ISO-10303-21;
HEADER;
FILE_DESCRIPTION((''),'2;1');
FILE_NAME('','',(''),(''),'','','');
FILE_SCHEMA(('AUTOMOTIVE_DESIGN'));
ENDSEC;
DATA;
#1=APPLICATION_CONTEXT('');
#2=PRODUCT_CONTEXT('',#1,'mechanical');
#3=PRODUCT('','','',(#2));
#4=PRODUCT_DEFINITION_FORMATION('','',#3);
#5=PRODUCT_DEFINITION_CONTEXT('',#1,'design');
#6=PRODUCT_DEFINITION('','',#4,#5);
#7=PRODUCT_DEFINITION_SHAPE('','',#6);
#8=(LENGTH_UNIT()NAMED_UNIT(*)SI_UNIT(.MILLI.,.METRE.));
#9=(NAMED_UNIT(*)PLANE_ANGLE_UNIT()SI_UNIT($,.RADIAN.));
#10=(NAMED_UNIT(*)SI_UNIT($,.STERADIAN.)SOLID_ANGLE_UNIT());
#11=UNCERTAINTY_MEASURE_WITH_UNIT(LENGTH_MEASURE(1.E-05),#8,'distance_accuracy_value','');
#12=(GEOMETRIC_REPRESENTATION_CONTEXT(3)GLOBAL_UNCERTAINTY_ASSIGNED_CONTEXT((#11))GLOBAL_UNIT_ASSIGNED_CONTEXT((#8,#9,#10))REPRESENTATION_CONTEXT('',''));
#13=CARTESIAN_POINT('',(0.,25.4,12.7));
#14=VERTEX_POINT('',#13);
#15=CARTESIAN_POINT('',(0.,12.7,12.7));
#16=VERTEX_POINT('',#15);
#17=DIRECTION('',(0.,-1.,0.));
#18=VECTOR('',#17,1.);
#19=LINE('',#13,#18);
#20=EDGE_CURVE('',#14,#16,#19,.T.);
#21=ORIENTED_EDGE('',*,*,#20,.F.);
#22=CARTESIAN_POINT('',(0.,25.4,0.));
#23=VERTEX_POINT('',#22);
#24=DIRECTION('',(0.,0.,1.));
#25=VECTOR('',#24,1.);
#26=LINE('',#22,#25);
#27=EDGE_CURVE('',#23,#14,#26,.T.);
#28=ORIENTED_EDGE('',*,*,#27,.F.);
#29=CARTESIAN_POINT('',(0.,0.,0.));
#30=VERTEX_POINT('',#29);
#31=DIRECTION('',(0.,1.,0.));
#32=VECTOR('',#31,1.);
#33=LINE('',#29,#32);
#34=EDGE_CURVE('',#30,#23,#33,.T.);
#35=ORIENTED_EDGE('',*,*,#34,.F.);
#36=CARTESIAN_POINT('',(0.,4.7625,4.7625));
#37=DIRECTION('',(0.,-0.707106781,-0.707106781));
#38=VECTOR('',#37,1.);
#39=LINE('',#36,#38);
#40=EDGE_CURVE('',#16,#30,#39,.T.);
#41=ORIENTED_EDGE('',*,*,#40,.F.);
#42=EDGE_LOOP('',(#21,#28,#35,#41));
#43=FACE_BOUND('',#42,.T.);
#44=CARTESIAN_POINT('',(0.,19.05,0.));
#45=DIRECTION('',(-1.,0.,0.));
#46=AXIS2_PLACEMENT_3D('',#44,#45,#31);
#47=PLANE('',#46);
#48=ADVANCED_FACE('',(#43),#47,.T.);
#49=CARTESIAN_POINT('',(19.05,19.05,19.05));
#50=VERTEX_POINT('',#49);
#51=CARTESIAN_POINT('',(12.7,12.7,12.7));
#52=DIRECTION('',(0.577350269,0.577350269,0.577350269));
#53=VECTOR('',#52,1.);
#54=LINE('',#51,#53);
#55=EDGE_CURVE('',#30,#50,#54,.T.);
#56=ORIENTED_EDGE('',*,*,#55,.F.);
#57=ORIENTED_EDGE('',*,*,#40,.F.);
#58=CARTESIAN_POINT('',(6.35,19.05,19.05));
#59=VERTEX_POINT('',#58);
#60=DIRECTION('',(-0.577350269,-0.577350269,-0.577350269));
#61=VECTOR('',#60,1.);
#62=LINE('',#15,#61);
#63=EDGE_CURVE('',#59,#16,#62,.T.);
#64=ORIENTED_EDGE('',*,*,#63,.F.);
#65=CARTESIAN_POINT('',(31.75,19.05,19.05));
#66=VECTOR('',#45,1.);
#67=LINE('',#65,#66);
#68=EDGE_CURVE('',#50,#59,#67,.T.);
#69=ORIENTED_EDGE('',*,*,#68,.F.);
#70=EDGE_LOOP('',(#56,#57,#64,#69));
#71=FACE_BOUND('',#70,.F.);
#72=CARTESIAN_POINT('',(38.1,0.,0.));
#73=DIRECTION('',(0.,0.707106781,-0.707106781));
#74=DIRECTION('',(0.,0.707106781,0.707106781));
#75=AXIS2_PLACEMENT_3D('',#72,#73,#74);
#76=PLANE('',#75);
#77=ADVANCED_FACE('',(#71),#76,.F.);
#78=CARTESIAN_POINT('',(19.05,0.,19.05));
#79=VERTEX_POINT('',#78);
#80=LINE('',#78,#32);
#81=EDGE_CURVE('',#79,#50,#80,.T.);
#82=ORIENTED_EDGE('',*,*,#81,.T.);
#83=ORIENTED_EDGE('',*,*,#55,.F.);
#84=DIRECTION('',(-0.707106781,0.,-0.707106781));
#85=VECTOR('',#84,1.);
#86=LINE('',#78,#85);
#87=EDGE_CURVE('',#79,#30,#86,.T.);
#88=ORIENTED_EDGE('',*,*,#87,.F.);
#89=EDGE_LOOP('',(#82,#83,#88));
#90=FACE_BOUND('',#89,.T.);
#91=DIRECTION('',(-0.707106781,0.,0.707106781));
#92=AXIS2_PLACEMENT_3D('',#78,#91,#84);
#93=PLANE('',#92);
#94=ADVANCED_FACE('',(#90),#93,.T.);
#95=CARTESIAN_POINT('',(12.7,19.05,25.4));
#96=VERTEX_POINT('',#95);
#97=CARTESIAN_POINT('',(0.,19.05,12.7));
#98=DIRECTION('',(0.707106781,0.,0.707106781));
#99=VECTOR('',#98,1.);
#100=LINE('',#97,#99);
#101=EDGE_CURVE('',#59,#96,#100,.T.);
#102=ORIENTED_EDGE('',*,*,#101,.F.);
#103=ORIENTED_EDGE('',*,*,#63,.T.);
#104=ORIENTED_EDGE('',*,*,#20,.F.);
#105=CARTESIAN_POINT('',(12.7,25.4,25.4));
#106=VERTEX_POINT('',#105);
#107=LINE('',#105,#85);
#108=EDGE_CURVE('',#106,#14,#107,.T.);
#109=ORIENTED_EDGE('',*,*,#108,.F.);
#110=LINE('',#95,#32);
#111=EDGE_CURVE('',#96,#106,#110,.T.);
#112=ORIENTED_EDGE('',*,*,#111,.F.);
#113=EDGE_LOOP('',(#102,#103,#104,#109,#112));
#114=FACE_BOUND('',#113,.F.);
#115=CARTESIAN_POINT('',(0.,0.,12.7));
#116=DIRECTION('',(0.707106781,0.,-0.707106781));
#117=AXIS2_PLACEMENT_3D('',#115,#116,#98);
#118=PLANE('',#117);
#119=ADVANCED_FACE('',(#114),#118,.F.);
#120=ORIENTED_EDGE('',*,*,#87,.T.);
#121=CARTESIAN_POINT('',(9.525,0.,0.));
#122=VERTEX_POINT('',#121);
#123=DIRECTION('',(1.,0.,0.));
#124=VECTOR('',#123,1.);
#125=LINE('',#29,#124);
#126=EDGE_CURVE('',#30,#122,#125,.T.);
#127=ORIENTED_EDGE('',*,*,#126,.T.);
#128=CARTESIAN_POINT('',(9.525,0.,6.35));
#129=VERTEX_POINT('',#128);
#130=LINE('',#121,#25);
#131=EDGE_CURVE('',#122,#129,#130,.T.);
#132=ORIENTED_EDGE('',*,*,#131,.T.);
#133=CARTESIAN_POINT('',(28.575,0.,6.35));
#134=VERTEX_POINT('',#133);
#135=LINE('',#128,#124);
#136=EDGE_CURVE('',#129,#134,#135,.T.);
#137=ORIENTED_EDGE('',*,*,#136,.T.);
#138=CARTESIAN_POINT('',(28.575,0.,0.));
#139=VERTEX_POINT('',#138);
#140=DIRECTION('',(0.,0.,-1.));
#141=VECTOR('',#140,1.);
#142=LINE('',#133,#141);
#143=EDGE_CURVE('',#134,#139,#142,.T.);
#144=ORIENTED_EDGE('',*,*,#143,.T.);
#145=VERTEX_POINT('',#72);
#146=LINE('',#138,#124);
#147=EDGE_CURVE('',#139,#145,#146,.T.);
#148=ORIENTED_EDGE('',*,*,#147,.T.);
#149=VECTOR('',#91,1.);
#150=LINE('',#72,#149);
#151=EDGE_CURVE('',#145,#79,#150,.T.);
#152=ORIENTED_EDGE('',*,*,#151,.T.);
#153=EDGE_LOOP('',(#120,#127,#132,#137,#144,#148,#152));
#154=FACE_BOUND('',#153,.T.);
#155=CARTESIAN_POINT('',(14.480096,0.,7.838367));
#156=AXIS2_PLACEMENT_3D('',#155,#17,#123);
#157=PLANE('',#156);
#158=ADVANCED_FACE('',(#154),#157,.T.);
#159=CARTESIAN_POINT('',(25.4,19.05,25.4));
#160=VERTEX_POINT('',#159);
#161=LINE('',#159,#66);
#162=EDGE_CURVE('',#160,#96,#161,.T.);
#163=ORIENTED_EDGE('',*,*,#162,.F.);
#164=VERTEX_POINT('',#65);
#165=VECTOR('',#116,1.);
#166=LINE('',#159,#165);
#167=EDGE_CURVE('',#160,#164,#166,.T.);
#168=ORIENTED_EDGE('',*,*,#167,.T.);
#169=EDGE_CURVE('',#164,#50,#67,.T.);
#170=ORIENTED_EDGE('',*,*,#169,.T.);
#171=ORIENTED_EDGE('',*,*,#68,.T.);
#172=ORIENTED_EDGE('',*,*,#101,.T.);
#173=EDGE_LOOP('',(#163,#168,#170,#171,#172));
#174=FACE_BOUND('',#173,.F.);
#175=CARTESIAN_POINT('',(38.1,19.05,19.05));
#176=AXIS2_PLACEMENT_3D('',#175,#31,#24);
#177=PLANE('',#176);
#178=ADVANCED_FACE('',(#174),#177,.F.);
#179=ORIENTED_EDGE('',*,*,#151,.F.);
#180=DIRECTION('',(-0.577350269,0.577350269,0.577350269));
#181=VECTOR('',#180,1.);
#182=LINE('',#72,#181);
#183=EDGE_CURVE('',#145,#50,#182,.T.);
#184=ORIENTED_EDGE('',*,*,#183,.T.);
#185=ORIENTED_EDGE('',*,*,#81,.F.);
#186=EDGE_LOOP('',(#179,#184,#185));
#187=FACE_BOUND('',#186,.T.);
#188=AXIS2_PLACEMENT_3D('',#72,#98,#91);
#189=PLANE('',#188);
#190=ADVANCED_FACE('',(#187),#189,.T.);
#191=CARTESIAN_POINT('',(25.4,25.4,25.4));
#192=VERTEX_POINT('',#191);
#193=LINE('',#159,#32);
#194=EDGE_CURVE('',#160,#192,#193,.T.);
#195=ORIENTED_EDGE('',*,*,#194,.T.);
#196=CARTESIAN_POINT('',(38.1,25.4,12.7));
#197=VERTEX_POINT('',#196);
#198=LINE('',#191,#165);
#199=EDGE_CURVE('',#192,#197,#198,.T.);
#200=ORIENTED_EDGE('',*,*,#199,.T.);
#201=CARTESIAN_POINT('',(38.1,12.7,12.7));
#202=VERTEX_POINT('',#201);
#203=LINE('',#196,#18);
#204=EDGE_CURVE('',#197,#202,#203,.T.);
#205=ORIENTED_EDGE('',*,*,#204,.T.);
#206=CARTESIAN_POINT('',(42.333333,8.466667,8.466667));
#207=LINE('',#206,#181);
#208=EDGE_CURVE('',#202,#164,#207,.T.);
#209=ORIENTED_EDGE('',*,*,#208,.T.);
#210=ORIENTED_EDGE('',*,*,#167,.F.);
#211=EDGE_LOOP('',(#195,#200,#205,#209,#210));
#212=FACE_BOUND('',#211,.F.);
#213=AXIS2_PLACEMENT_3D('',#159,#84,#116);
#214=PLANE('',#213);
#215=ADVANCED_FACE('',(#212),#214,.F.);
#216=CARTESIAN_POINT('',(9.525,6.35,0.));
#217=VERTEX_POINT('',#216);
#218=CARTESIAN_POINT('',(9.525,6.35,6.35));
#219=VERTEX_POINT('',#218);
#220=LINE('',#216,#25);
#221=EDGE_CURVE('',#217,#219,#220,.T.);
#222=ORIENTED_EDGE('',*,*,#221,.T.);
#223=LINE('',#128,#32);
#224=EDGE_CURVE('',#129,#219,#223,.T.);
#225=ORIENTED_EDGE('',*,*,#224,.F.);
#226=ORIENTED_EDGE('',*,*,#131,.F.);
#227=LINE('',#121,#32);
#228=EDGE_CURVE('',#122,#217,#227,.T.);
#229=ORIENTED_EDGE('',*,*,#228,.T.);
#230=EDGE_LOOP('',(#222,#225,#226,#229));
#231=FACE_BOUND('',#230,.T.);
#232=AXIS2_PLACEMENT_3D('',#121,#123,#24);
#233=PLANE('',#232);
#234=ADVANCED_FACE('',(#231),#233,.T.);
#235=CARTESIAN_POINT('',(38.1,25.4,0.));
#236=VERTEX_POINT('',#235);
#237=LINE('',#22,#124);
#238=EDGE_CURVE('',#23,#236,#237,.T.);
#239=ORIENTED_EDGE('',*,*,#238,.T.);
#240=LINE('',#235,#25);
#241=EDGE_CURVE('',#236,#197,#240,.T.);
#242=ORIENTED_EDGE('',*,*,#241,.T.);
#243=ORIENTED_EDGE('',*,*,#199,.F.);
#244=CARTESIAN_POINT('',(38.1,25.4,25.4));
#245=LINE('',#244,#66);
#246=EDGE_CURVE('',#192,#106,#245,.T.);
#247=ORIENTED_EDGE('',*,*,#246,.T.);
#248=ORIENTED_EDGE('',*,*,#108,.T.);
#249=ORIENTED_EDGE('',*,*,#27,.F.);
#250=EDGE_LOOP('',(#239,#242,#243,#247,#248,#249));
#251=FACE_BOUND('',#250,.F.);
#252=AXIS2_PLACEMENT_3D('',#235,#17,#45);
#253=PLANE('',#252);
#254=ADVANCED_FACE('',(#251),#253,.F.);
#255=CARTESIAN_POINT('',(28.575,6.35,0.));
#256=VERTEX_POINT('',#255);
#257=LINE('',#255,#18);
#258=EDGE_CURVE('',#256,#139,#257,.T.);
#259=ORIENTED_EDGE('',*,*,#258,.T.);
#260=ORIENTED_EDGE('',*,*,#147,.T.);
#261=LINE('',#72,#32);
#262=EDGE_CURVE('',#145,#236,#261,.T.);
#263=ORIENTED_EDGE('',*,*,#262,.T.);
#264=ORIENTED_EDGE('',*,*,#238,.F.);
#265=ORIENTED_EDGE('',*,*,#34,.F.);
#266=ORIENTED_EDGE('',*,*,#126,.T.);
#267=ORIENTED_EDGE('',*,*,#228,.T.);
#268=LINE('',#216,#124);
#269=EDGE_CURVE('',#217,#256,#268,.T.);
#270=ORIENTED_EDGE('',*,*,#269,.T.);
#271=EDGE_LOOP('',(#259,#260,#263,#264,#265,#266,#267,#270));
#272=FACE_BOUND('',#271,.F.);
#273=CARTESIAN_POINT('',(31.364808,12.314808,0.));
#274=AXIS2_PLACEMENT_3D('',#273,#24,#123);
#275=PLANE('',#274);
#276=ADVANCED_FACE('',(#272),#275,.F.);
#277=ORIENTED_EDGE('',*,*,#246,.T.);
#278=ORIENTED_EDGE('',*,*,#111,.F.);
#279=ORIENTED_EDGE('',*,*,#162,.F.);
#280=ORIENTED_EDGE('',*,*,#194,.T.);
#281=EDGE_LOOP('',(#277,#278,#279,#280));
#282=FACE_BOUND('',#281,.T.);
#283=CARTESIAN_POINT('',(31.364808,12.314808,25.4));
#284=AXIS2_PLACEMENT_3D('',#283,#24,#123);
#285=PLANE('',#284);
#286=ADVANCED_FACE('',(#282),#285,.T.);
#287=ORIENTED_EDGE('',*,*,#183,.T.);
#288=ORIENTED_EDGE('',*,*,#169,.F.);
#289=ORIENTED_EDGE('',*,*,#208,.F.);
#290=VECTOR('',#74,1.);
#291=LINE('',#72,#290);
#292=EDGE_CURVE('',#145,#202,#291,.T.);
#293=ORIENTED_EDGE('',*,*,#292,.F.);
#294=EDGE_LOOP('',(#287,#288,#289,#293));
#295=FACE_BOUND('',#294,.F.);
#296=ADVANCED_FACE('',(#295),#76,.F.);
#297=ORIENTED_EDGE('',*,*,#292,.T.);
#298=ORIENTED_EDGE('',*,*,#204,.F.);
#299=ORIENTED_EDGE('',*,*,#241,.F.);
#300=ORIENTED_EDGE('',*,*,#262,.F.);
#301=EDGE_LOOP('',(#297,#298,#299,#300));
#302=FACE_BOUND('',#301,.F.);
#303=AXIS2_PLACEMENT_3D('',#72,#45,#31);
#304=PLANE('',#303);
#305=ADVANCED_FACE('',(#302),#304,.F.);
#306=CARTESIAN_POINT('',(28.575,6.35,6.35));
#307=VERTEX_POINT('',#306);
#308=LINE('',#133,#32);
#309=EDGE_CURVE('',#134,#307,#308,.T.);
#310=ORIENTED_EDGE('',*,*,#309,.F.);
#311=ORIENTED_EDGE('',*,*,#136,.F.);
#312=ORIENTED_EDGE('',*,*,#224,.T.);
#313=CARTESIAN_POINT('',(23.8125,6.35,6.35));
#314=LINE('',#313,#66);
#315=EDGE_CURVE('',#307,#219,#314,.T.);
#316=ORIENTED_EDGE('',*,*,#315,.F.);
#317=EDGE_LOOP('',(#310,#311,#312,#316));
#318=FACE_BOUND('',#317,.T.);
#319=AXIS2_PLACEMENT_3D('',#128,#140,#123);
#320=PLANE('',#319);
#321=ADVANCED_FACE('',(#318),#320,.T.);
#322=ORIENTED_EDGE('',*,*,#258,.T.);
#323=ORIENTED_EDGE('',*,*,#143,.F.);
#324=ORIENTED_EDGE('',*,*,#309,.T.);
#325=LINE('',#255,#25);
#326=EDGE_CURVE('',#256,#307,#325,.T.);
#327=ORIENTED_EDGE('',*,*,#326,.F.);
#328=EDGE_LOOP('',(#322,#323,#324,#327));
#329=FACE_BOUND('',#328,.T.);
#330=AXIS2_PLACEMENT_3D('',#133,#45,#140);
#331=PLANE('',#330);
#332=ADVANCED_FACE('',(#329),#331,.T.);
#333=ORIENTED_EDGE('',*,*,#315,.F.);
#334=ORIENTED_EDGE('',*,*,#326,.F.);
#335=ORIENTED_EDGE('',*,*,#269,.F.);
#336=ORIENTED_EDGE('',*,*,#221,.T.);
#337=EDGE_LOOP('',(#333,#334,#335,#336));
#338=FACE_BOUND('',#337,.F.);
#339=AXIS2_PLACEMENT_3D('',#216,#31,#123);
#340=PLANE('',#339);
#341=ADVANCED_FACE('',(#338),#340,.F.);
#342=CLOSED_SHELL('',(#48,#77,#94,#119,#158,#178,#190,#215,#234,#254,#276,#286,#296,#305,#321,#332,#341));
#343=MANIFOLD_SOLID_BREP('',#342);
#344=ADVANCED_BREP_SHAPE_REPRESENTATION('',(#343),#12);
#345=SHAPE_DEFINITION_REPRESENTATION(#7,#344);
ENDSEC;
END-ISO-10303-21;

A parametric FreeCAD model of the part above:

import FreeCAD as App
import Part
import Sketcher
from FreeCAD import Vector
Q = App.Units.Quantity


def add_polygon(sketch, points):
    """Adds a closed chain of lines whose ends are joined by coincident constraints."""
    first, n = sketch.GeometryCount, len(points)
    for a, b in zip(points, points[1:] + points[:1]):
        sketch.addGeometry(Part.LineSegment(App.Vector(*a, 0), App.Vector(*b, 0)), False)
    for i in range(n):
        sketch.addConstraint(Sketcher.Constraint("Coincident", first + i, 2, first + (i + 1) % n, 1))

doc = App.newDocument("Part")
body = doc.addObject("PartDesign::Body", "Body")

sketch1 = body.newObject("Sketcher::SketchObject", "Sketch")
sketch1.AttachmentSupport = (doc.getObject("XY_Plane"), [""])
sketch1.MapMode = "FlatFace"
add_polygon(sketch1, [(0, 25.4), (0, 19.05), (38.1, 19.05), (38.1, 25.4)])
sketch1.addConstraint([
    Sketcher.Constraint("Vertical", 0),
    Sketcher.Constraint("Horizontal", 1),
    Sketcher.Constraint("Vertical", 2),
    Sketcher.Constraint("Horizontal", 3),
    Sketcher.Constraint("PointOnObject", 0, 2, -2),
    Sketcher.Constraint("DistanceX", 1, 1, 1, 2, Q("1.5 in")),
    Sketcher.Constraint("DistanceY", -1, 1, 2, 2, Q("1 in")),
    Sketcher.Constraint("DistanceY", 0, 2, 0, 1, Q("0.25 in")),
])
pad1 = body.newObject("PartDesign::Pad", "Pad")
pad1.Profile = sketch1
pad1.Length = Q("1 in")

sketch2 = body.newObject("Sketcher::SketchObject", "Sketch001")
sketch2.AttachmentSupport = (doc.getObject("XZ_Plane"), [""])
sketch2.MapMode = "FlatFace"
sketch2.AttachmentOffset = App.Placement(Vector(0, 0, -0.75 * 25.4), App.Rotation())
add_polygon(sketch2, [(12.7, 25.4), (0, 25.4), (0, 12.7)])
add_polygon(sketch2, [(38.1, 25.4), (25.4, 25.4), (38.1, 12.7)])
sketch2.addConstraint([
    Sketcher.Constraint("Horizontal", 0),
    Sketcher.Constraint("Vertical", 1),
    Sketcher.Constraint("Horizontal", 3),
    Sketcher.Constraint("Vertical", 5),
    Sketcher.Constraint("PointOnObject", 0, 2, -2),
    Sketcher.Constraint("Perpendicular", 2, 4),
    Sketcher.Constraint("Horizontal", 2, 2, 3, 2),
    Sketcher.Constraint("Horizontal", 1, 2, 4, 2),
    Sketcher.Constraint("Equal", 0, 3),
    Sketcher.Constraint("DistanceX", 0, 2, 0, 1, Q("0.5 in")),
    Sketcher.Constraint("DistanceY", -1, 1, 0, 2, Q("1 in")),
    Sketcher.Constraint("DistanceX", -1, 1, 3, 2, Q("1 in")),
])
pocket1 = body.newObject("PartDesign::Pocket", "Pocket")
pocket1.Profile = sketch2
pocket1.Type = "ThroughAll"
body2 = doc.addObject("PartDesign::Body", "Body001")

sketch3 = body2.newObject("Sketcher::SketchObject", "Sketch002")
sketch3.AttachmentSupport = (doc.getObject("XY_Plane001"), [""])
sketch3.MapMode = "FlatFace"
add_polygon(sketch3, [(19.05, 19.05), (0, 0), (9.525, 0), (9.525, 6.35), (28.575, 6.35), (28.575, 0), (38.1, 0)])
sketch3.addConstraint([
    Sketcher.Constraint("Horizontal", 1),
    Sketcher.Constraint("Vertical", 2),
    Sketcher.Constraint("Horizontal", 3),
    Sketcher.Constraint("Vertical", 4),
    Sketcher.Constraint("Horizontal", 5),
    Sketcher.Constraint("Coincident", 0, 2, -1, 1),
    Sketcher.Constraint("PointOnObject", 4, 2, -1),
    Sketcher.Constraint("Perpendicular", 0, 6),
    Sketcher.Constraint("Equal", 1, 5),
    Sketcher.Constraint("Equal", 0, 6),
    Sketcher.Constraint("DistanceX", 3, 1, 3, 2, Q("0.75 in")),
    Sketcher.Constraint("DistanceY", 2, 1, 2, 2, Q("0.25 in")),
    Sketcher.Constraint("DistanceX", -1, 1, 5, 2, Q("1.5 in")),
])
pad2 = body2.newObject("PartDesign::Pad", "Pad001")
pad2.Profile = sketch3
pad2.Length = Q("0.75 in")

sketch4 = body2.newObject("Sketcher::SketchObject", "Sketch003")
sketch4.AttachmentSupport = (doc.getObject("XZ_Plane001"), [""])
sketch4.MapMode = "FlatFace"
add_polygon(sketch4, [(38.1, 19.05), (28.575, 19.05), (28.575, 9.525), (38.1, 0)])
add_polygon(sketch4, [(0, 19.05), (0, 0), (19.05, 19.05)])
sketch4.addConstraint([
    Sketcher.Constraint("Horizontal", 0),
    Sketcher.Constraint("Vertical", 1),
    Sketcher.Constraint("Vertical", 3),
    Sketcher.Constraint("Vertical", 4),
    Sketcher.Constraint("Horizontal", 6),
    Sketcher.Constraint("Coincident", 4, 2, -1, 1),
    Sketcher.Constraint("PointOnObject", 2, 2, -1),
    Sketcher.Constraint("Perpendicular", 2, 5),
    Sketcher.Constraint("Horizontal", 3, 2, 5, 2),
    Sketcher.Constraint("Equal", 0, 1),
    Sketcher.Constraint("Equal", 6, 3),
    Sketcher.Constraint("DistanceX", 6, 2, 6, 1, Q("0.75 in")),
    Sketcher.Constraint("DistanceX", -1, 1, 2, 2, Q("1.5 in")),
])
pocket2 = body2.newObject("PartDesign::Pocket", "Pocket001")
pocket2.Profile = sketch4
pocket2.Length = Q("0.75 in")
body.AllowCompound = True
doc.recompute()

boolean = body.newObject("PartDesign::Boolean", "Boolean")
boolean.Type = "Fuse"
boolean.addObjects([body2])

sketch5 = body.newObject("Sketcher::SketchObject", "Sketch004")
sketch5.AttachmentSupport = (doc.getObject("XY_Plane"), [""])
sketch5.MapMode = "FlatFace"
add_polygon(sketch5, [(38.1, 19.05), (19.05, 19.05), (38.1, 0)])
add_polygon(sketch5, [(0, 19.05), (0, 0), (19.05, 19.05)])
sketch5.addConstraint([
    Sketcher.Constraint("Horizontal", 0),
    Sketcher.Constraint("Vertical", 2),
    Sketcher.Constraint("Vertical", 3),
    Sketcher.Constraint("Horizontal", 5),
    Sketcher.Constraint("Coincident", 3, 2, -1, 1),
    Sketcher.Constraint("Coincident", 4, 2, 0, 2),
    Sketcher.Constraint("PointOnObject", 1, 2, -1),
    Sketcher.Constraint("Perpendicular", 1, 4),
    Sketcher.Constraint("Equal", 0, 5),
    Sketcher.Constraint("DistanceX", 0, 2, 0, 1, Q("0.75 in")),
])
pad3 = body.newObject("PartDesign::Pad", "Pad002")
pad3.Profile = sketch5
pad3.Length = Q("1 in")

sketch6 = body.newObject("Sketcher::SketchObject", "Sketch005")
sketch6.AttachmentSupport = (doc.getObject("YZ_Plane"), [""])
sketch6.MapMode = "FlatFace"
sketch6.AttachmentOffset = App.Placement(Vector(0, 0, 1.5 * 25.4), App.Rotation())
add_polygon(sketch6, [(0, 0), (19.05, 19.05), (19.05, 25.4), (0, 25.4)])
sketch6.addConstraint([
    Sketcher.Constraint("Vertical", 1),
    Sketcher.Constraint("Horizontal", 2),
    Sketcher.Constraint("Vertical", 3),
    Sketcher.Constraint("Coincident", 3, 2, -1, 1),
    Sketcher.Constraint("DistanceY", 3, 2, 3, 1, Q("1 in")),
    Sketcher.Constraint("Angle", 0, Q("45 deg")),
    Sketcher.Constraint("DistanceX", 2, 2, 2, 1, Q("0.75 in")),
])
pocket3 = body.newObject("PartDesign::Pocket", "Pocket002")
pocket3.Profile = sketch6
pocket3.Type = "ThroughAll"

sketch7 = body.newObject("Sketcher::SketchObject", "Sketch006")
sketch7.AttachmentSupport = (doc.getObject("XZ_Plane"), [""])
sketch7.MapMode = "FlatFace"
add_polygon(sketch7, [(19.05, 19.05), (0, 0), (9.525, 0), (9.525, 6.35), (28.575, 6.35), (28.575, 0), (38.1, 0)])
sketch7.addConstraint([
    Sketcher.Constraint("Horizontal", 1),
    Sketcher.Constraint("Vertical", 2),
    Sketcher.Constraint("Horizontal", 3),
    Sketcher.Constraint("Vertical", 4),
    Sketcher.Constraint("Horizontal", 5),
    Sketcher.Constraint("Coincident", 0, 2, -1, 1),
    Sketcher.Constraint("PointOnObject", 4, 2, -1),
    Sketcher.Constraint("Perpendicular", 0, 6),
    Sketcher.Constraint("Equal", 1, 5),
    Sketcher.Constraint("Equal", 0, 6),
    Sketcher.Constraint("DistanceX", 3, 1, 3, 2, Q("0.75 in")),
    Sketcher.Constraint("DistanceY", 2, 1, 2, 2, Q("0.25 in")),
    Sketcher.Constraint("DistanceX", -1, 1, 5, 2, Q("1.5 in")),
])
pad4 = body.newObject("PartDesign::Pad", "Pad003")
pad4.Profile = sketch7
pad4.Length = Q("1 in")
pad4.Reversed = True

sketch8 = body.newObject("Sketcher::SketchObject", "Sketch007")
sketch8.AttachmentSupport = (doc.getObject("XZ_Plane"), [""])
sketch8.MapMode = "FlatFace"
add_polygon(sketch8, [(6.35, 19.05), (0, 19.05), (0, 12.7)])
add_polygon(sketch8, [(38.1, 12.7), (38.1, 19.05), (31.75, 19.05)])
sketch8.addConstraint([
    Sketcher.Constraint("Horizontal", 0),
    Sketcher.Constraint("Vertical", 1),
    Sketcher.Constraint("Vertical", 3),
    Sketcher.Constraint("Horizontal", 4),
    Sketcher.Constraint("PointOnObject", 0, 2, -2),
    Sketcher.Constraint("Perpendicular", 2, 5),
    Sketcher.Constraint("Horizontal", 2, 2, 3, 2),
    Sketcher.Constraint("Horizontal", 1, 2, 5, 2),
    Sketcher.Constraint("Equal", 0, 4),
    Sketcher.Constraint("DistanceX", 2, 2, 4, 2, Q("1 in")),
    Sketcher.Constraint("DistanceX", 0, 2, 0, 1, Q("0.25 in")),
    Sketcher.Constraint("DistanceY", -1, 1, 1, 2, Q("0.5 in")),
])
pocket4 = body.newObject("PartDesign::Pocket", "Pocket003")
pocket4.Profile = sketch8
pocket4.Type = "ThroughAll"

doc.recompute()
